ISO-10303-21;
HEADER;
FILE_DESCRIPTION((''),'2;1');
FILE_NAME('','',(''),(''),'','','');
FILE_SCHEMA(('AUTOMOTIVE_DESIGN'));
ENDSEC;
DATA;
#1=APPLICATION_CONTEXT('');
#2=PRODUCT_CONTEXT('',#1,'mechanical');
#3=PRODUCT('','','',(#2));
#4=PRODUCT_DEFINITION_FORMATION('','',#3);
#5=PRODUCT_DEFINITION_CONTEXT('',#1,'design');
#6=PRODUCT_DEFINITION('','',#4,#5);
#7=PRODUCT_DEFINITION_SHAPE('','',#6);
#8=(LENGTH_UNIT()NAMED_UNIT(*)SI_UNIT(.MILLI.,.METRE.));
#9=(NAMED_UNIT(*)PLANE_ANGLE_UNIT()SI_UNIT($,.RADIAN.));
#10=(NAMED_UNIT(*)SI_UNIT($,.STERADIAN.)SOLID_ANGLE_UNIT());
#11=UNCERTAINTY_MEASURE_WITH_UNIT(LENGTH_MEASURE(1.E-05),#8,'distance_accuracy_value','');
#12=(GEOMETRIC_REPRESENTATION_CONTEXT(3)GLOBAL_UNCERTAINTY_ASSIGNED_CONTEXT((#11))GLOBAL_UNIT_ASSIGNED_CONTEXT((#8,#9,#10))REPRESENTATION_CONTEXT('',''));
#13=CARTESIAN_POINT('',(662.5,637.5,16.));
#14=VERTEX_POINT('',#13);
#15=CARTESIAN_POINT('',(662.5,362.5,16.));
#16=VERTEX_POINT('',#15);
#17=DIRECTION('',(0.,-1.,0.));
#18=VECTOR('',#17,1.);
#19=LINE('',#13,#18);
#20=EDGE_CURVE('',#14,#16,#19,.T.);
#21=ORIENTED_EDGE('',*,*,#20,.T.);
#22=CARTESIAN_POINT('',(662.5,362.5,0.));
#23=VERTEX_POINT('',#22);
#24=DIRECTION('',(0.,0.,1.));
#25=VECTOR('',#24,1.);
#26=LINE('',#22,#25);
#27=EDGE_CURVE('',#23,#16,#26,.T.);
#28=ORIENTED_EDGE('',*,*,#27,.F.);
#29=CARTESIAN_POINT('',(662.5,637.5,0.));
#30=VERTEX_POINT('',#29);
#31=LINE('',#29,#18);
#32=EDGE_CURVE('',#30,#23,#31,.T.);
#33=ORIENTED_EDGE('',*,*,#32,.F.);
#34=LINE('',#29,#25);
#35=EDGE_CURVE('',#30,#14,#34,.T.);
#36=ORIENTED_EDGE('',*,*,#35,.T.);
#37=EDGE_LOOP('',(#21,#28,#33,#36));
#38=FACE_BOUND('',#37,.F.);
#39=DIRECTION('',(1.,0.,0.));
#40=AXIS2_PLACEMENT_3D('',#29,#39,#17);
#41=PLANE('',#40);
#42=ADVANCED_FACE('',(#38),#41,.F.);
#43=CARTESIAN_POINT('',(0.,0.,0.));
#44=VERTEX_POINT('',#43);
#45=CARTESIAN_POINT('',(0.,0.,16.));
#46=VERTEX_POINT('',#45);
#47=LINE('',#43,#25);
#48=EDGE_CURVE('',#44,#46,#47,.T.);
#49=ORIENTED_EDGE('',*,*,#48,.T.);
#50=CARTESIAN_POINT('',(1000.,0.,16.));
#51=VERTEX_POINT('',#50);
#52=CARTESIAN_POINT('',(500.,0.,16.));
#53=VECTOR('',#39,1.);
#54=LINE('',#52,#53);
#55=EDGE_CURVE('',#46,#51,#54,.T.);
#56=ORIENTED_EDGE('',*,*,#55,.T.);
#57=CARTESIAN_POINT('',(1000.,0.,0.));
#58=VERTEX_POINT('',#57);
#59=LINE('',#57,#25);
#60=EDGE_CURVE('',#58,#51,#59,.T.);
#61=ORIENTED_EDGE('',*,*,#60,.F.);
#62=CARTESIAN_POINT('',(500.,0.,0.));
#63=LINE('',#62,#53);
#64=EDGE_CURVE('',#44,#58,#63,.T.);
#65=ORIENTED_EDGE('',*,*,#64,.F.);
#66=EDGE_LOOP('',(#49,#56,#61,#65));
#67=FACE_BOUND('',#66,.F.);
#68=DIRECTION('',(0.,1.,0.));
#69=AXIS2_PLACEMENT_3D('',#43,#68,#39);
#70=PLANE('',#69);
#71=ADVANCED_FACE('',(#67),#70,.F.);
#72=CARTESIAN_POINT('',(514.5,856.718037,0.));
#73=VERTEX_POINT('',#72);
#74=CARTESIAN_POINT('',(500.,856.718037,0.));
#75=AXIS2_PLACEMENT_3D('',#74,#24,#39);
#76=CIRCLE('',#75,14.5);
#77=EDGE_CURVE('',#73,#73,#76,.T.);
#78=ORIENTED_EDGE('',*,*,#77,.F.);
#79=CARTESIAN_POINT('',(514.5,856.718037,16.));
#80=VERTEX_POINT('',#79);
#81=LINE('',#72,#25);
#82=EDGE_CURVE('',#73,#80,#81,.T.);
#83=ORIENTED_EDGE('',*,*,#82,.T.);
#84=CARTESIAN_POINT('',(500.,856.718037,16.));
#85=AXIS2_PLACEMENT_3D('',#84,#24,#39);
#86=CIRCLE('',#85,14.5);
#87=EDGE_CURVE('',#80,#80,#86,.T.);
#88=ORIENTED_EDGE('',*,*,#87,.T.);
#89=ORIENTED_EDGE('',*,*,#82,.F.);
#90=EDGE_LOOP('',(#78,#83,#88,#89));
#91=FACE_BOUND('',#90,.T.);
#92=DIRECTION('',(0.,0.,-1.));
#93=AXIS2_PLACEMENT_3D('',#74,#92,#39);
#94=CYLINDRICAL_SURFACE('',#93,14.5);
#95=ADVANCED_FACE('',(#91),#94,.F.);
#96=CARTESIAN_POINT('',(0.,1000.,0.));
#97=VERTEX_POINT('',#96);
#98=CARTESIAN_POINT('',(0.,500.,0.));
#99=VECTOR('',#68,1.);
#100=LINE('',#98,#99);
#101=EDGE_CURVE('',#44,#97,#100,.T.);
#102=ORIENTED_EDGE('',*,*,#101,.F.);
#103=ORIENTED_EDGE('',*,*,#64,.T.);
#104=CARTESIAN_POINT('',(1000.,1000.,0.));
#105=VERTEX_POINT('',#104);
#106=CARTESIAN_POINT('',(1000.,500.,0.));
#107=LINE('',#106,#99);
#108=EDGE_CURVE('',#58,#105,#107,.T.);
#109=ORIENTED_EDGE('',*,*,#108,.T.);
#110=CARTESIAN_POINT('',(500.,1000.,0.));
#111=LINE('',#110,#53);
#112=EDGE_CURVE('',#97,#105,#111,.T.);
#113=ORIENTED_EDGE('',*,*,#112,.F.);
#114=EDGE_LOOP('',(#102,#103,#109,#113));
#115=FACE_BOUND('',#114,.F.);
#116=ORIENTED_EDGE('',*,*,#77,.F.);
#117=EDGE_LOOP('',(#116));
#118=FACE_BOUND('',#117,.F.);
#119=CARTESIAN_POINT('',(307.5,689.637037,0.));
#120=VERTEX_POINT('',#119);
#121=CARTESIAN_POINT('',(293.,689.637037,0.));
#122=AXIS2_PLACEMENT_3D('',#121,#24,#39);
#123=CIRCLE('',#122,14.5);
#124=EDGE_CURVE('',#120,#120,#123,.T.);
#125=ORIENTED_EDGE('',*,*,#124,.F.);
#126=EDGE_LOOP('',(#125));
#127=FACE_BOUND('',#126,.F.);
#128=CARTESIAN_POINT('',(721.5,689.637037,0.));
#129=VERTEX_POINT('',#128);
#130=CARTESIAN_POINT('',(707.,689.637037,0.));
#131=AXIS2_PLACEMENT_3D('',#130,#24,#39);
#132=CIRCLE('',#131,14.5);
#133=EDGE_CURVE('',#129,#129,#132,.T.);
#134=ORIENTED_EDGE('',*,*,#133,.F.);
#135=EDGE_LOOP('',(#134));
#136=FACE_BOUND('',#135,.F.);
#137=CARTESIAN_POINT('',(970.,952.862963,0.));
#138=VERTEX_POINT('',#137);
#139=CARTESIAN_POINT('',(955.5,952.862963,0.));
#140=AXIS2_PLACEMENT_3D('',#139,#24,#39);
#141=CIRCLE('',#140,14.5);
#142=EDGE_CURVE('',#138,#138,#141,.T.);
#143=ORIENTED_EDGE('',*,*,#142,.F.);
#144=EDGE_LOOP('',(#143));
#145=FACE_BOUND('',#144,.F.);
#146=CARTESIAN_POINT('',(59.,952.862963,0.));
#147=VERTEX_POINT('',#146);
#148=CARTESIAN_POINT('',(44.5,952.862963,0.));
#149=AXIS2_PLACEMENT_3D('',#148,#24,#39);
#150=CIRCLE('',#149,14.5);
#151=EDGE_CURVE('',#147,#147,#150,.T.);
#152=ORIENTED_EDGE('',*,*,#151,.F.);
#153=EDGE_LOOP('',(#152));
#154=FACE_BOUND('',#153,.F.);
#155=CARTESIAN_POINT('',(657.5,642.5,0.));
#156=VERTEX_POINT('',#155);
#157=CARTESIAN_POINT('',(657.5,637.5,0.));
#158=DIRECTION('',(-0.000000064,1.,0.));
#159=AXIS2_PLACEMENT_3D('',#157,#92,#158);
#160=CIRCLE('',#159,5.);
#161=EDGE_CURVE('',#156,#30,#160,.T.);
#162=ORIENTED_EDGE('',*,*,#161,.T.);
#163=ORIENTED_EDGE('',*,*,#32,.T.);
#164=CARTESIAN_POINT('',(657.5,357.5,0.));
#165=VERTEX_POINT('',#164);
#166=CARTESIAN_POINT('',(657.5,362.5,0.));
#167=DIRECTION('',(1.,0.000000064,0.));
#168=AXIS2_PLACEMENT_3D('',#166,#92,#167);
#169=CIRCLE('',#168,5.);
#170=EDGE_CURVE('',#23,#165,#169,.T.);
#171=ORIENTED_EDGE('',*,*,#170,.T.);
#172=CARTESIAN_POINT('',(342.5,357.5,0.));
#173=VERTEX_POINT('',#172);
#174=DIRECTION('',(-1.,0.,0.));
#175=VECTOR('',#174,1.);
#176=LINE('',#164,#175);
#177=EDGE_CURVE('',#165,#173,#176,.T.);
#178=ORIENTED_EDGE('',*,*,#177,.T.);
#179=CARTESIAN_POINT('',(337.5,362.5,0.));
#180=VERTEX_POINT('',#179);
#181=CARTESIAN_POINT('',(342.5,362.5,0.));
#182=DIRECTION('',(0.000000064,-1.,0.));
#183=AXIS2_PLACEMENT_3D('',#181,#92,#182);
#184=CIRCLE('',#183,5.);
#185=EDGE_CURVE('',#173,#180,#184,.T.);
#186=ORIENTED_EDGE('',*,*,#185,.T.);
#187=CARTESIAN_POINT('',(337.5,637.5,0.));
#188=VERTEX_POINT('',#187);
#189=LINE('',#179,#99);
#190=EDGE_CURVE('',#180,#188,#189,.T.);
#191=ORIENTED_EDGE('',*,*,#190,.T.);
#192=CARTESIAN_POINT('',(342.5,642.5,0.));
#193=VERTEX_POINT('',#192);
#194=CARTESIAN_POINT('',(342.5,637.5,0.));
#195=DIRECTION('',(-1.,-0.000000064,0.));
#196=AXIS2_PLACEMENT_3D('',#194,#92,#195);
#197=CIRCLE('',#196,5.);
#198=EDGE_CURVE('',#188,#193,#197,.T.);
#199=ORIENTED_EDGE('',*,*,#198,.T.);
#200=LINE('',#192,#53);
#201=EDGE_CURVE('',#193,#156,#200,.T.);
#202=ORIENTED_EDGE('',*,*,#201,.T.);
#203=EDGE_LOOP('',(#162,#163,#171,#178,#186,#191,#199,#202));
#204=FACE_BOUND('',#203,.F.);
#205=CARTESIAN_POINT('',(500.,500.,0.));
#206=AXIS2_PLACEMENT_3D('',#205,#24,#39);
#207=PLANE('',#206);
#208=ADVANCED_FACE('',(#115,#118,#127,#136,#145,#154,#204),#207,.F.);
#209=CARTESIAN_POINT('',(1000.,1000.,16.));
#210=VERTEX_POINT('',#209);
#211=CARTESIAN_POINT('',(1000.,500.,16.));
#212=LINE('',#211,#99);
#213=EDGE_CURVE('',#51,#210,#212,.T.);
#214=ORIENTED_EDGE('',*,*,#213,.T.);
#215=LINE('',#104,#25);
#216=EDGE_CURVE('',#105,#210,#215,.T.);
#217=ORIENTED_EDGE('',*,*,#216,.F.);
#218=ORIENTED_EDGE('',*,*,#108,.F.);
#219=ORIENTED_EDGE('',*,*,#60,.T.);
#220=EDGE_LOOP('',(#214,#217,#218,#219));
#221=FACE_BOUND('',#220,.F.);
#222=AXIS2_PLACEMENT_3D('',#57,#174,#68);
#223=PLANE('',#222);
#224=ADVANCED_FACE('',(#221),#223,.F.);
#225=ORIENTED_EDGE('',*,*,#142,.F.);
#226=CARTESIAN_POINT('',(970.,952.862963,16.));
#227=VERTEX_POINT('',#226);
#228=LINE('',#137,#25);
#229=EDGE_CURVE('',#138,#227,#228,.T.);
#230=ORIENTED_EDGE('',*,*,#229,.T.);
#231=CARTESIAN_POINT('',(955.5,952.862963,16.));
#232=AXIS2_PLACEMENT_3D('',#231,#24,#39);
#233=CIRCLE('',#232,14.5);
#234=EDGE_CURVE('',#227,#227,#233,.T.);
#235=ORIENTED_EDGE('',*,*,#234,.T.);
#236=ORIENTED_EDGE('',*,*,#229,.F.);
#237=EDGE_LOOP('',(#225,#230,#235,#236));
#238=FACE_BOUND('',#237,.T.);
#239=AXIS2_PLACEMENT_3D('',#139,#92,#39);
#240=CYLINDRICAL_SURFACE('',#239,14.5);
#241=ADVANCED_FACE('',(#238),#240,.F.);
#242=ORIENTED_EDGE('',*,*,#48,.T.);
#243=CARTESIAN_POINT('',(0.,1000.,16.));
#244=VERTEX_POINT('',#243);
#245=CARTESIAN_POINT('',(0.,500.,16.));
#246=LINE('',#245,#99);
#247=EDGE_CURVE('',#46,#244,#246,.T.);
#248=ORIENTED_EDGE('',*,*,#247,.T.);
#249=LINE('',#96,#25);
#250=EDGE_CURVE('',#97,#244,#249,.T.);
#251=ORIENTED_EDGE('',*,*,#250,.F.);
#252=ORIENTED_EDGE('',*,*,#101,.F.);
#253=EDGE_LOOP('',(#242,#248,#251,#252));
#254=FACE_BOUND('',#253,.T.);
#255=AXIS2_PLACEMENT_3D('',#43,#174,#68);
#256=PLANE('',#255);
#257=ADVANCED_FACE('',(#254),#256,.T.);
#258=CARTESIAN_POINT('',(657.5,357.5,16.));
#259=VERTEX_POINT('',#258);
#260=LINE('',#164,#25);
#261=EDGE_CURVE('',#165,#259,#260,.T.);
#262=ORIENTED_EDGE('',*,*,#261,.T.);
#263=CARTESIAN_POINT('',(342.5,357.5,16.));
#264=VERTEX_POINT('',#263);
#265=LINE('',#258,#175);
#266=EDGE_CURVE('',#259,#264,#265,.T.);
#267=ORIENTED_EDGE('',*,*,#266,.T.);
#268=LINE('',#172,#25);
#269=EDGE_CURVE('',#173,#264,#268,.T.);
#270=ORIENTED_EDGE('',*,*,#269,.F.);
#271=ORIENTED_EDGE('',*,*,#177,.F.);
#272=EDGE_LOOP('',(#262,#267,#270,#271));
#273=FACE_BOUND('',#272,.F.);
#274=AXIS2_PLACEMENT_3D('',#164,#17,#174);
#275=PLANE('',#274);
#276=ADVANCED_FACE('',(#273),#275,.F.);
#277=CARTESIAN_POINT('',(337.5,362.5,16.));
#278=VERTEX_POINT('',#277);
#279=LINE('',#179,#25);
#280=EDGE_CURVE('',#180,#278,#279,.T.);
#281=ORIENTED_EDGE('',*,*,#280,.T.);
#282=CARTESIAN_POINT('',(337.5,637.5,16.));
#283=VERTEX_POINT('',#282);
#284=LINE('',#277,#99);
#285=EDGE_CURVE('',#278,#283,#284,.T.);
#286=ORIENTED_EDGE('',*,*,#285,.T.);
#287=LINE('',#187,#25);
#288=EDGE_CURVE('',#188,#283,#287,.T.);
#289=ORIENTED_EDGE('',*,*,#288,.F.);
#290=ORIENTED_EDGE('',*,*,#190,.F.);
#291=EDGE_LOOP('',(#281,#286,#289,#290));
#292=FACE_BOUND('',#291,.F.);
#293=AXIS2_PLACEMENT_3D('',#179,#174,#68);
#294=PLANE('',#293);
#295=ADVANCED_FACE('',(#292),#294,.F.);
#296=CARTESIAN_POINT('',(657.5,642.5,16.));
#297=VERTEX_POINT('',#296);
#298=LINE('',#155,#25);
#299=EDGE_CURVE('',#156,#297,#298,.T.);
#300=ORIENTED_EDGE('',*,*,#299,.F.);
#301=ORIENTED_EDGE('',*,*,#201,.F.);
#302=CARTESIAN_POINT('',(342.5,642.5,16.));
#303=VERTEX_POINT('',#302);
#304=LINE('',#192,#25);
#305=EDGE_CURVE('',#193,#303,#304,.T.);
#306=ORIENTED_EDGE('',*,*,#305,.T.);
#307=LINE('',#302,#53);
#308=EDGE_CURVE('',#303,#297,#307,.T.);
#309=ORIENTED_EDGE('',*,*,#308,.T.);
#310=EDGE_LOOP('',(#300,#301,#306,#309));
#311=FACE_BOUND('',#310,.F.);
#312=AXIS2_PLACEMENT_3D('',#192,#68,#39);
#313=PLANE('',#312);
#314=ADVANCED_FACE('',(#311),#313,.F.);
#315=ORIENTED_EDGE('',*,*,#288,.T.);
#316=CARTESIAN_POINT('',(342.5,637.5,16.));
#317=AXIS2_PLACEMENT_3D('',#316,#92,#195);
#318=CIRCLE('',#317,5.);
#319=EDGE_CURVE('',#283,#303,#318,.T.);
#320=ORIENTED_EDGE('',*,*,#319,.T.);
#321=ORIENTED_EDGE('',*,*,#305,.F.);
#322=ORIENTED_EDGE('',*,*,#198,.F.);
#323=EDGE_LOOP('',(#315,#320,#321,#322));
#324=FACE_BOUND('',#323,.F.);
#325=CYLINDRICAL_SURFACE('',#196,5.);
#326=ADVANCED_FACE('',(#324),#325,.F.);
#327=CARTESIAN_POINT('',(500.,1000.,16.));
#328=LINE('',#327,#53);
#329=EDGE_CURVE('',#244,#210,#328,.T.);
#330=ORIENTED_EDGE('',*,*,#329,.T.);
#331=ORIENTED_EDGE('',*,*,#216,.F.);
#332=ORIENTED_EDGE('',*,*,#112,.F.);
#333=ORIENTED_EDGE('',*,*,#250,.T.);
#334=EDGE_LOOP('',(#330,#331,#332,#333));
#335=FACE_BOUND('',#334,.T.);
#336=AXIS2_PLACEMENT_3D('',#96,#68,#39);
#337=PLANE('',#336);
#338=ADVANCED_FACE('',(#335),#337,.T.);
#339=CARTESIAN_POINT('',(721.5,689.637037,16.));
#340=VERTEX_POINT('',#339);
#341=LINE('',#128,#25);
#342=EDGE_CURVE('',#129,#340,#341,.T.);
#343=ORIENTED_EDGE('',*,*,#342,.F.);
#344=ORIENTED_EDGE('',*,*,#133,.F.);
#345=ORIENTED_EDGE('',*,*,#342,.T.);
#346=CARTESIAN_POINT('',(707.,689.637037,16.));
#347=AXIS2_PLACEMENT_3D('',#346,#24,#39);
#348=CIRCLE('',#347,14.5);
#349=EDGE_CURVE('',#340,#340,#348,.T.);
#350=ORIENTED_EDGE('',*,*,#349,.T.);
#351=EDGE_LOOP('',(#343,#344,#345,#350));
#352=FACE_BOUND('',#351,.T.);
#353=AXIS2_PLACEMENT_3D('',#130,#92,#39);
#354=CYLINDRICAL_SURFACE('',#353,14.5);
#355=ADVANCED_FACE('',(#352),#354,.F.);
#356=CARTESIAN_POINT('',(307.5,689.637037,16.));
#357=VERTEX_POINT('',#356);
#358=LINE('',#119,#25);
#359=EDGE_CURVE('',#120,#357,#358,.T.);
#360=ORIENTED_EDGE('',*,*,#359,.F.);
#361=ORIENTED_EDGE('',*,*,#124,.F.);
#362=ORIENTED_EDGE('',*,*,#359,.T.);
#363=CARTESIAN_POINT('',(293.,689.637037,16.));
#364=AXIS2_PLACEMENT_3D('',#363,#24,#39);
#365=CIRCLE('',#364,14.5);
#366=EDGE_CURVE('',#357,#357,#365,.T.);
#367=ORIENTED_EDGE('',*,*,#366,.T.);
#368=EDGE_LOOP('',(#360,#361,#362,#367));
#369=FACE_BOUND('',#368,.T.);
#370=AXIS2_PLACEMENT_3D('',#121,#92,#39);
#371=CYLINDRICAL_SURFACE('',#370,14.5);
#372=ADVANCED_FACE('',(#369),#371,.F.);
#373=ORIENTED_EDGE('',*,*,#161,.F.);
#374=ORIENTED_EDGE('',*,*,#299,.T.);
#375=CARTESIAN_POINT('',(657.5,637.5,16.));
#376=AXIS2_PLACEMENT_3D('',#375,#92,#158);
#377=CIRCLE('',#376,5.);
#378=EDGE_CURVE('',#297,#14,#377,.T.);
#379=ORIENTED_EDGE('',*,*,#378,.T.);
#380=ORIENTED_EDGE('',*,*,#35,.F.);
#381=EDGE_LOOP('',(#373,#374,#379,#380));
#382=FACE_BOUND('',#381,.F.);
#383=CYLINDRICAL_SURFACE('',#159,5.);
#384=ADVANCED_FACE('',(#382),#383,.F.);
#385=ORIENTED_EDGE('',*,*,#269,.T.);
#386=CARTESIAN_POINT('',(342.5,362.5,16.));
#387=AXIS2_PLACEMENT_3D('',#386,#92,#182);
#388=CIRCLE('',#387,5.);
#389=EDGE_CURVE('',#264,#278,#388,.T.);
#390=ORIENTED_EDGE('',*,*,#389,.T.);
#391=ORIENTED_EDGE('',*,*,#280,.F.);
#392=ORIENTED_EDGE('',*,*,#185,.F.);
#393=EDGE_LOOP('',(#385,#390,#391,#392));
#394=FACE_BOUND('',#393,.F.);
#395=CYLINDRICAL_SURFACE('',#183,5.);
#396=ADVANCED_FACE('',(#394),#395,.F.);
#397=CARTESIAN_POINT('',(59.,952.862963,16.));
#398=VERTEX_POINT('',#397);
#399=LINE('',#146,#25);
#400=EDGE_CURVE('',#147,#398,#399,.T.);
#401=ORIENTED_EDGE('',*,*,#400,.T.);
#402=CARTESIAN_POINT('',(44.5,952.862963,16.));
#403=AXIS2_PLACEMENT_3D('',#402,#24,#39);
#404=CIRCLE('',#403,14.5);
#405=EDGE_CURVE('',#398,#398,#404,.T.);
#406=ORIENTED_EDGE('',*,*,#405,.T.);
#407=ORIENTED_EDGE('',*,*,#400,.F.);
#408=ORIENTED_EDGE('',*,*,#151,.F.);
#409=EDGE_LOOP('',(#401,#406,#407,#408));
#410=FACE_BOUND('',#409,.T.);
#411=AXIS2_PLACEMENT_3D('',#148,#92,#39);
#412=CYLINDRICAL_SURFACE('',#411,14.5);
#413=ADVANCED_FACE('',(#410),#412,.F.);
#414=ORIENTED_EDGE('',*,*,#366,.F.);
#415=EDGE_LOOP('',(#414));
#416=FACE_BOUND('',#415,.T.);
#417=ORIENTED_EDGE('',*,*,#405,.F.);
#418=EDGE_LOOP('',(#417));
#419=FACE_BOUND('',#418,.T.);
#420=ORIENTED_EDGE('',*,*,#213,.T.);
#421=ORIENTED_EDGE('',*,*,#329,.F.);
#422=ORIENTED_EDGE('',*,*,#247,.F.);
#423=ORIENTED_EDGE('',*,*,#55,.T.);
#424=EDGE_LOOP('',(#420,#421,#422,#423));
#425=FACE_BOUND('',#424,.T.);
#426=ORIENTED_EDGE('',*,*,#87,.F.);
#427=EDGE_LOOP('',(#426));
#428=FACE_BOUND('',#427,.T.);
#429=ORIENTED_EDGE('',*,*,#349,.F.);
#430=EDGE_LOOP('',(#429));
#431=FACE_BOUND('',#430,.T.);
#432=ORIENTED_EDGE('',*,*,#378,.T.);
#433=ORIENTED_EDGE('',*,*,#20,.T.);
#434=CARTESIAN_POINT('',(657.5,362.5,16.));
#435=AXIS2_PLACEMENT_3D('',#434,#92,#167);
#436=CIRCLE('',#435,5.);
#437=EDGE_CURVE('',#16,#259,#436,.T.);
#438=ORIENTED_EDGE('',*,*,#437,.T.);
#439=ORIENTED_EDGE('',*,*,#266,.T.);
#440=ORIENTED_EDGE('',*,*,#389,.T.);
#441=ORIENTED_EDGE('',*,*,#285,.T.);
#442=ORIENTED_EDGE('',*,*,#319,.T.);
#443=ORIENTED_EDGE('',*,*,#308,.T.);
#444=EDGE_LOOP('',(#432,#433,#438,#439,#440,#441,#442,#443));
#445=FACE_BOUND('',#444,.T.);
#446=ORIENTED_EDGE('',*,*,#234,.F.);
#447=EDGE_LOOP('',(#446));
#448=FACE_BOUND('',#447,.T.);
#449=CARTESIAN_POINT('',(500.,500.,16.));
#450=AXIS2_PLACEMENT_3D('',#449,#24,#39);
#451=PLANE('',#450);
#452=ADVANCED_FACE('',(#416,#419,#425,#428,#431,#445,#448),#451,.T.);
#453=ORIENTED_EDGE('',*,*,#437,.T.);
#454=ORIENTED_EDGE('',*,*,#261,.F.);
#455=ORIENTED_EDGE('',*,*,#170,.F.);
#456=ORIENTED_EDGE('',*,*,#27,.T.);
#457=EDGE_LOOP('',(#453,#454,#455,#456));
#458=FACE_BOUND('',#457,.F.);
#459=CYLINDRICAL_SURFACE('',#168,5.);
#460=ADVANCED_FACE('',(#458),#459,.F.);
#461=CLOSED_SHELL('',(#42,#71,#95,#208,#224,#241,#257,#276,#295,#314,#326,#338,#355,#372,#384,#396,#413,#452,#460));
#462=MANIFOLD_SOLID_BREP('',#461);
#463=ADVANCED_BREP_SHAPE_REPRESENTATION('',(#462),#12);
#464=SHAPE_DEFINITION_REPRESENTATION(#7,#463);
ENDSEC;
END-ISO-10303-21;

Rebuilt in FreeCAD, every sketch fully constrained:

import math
import FreeCAD as App
import Part
import Sketcher
from FreeCAD import Vector


def add_polygon(sketch, points):
    """Adds a closed chain of lines whose ends are joined by coincident constraints."""
    first, n = sketch.GeometryCount, len(points)
    for a, b in zip(points, points[1:] + points[:1]):
        sketch.addGeometry(Part.LineSegment(App.Vector(*a, 0), App.Vector(*b, 0)), False)
    for i in range(n):
        sketch.addConstraint(Sketcher.Constraint("Coincident", first + i, 2, first + (i + 1) % n, 1))

doc = App.newDocument("Part")
body = doc.addObject("PartDesign::Body", "Body")

sketch1 = body.newObject("Sketcher::SketchObject", "Sketch")
sketch1.AttachmentSupport = (doc.getObject("XY_Plane"), [""])
sketch1.MapMode = "FlatFace"
add_polygon(sketch1, [(0, 1000), (0, 0), (1000, 0), (1000, 1000)])
sketch1.addGeometry(Part.ArcOfCircle(Part.Circle(Vector(342.5, 637.5, 0), Vector(0, 0, 1), 5), math.radians(89.999996), math.radians(180.000004)), False)
sketch1.addGeometry(Part.LineSegment(Vector(342.5, 642.5, 0), Vector(657.5, 642.5, 0)), False)
sketch1.addGeometry(Part.ArcOfCircle(Part.Circle(Vector(657.5, 637.5, 0), Vector(0, 0, 1), 5), math.radians(-0.000004), math.radians(90.000004)), False)
sketch1.addGeometry(Part.LineSegment(Vector(662.5, 637.5, 0), Vector(662.5, 362.5, 0)), False)
sketch1.addGeometry(Part.ArcOfCircle(Part.Circle(Vector(657.5, 362.5, 0), Vector(0, 0, 1), 5), math.radians(-90.000004), math.radians(0.000004)), False)
sketch1.addGeometry(Part.LineSegment(Vector(657.5, 357.5, 0), Vector(342.5, 357.5, 0)), False)
sketch1.addGeometry(Part.ArcOfCircle(Part.Circle(Vector(342.5, 362.5, 0), Vector(0, 0, 1), 5), math.radians(179.999996), math.radians(270.000004)), False)
sketch1.addGeometry(Part.LineSegment(Vector(337.5, 362.5, 0), Vector(337.5, 637.5, 0)), False)
sketch1.addGeometry(Part.Circle(Vector(293, 689.637037, 0), Vector(0, 0, 1), 14.5), False)
sketch1.addGeometry(Part.Circle(Vector(44.5, 952.862963, 0), Vector(0, 0, 1), 14.5), False)
sketch1.addGeometry(Part.Circle(Vector(707, 689.637037, 0), Vector(0, 0, 1), 14.5), False)
sketch1.addGeometry(Part.Circle(Vector(500, 856.718037, 0), Vector(0, 0, 1), 14.5), False)
sketch1.addGeometry(Part.Circle(Vector(955.5, 952.862963, 0), Vector(0, 0, 1), 14.5), False)
sketch1.addConstraint([
    Sketcher.Constraint("Tangent", 4, 1, 5, 1),
    Sketcher.Constraint("Tangent", 5, 2, 6, 2),
    Sketcher.Constraint("Tangent", 6, 1, 7, 1),
    Sketcher.Constraint("Tangent", 7, 2, 8, 2),
    Sketcher.Constraint("Tangent", 8, 1, 9, 1),
    Sketcher.Constraint("Tangent", 9, 2, 10, 2),
    Sketcher.Constraint("Tangent", 10, 1, 11, 1),
    Sketcher.Constraint("Tangent", 11, 2, 4, 2),
    Sketcher.Constraint("Vertical", 0),
    Sketcher.Constraint("Horizontal", 1),
    Sketcher.Constraint("Vertical", 2),
    Sketcher.Constraint("Horizontal", 3),
    Sketcher.Constraint("Horizontal", 5),
    Sketcher.Constraint("Vertical", 7),
    Sketcher.Constraint("Horizontal", 9),
    Sketcher.Constraint("Vertical", 11),
    Sketcher.Constraint("Coincident", 0, 2, -1, 1),
    Sketcher.Constraint("Equal", 4, 6),
    Sketcher.Constraint("Equal", 6, 8),
    Sketcher.Constraint("Equal", 8, 10),
    Sketcher.Constraint("Equal", 12, 13),
    Sketcher.Constraint("Equal", 13, 14),
    Sketcher.Constraint("Equal", 14, 15),
    Sketcher.Constraint("Equal", 15, 16),
    Sketcher.Constraint("Horizontal", 12, 3, 14, 3),
    Sketcher.Constraint("Horizontal", 13, 3, 16, 3),
    Sketcher.Constraint("Equal", 3, 0),
    Sketcher.Constraint("Diameter", 12, 29.0),
    Sketcher.Constraint("Radius", 4, 5.0),
    Sketcher.Constraint("DistanceX", 1, 1, 1, 2, 1000.0),
    Sketcher.Constraint("DistanceX", 5, 1, 5, 2, 315.0),
    Sketcher.Constraint("DistanceY", 7, 2, 7, 1, 275.0),
    Sketcher.Constraint("DistanceX", -1, 1, 12, 3, 293.0),
    Sketcher.Constraint("DistanceX", -1, 1, 14, 3, 707.0),
    Sketcher.Constraint("DistanceX", -1, 1, 15, 3, 500.0),
    Sketcher.Constraint("DistanceX", 13, 3, 4, 3, 298.0),
    Sketcher.Constraint("DistanceX", 6, 3, 16, 3, 298.0),
    Sketcher.Constraint("DistanceX", -1, 1, 4, 3, 342.5),
    Sketcher.Constraint("DistanceY", -1, 1, 4, 3, 637.5),
    Sketcher.Constraint("DistanceY", 12, 3, 15, 3, 167.081),
    Sketcher.Constraint("DistanceY", -1, 1, 12, 3, 689.637037),
    Sketcher.Constraint("DistanceY", -1, 1, 13, 3, 952.862963),
])
pad1 = body.newObject("PartDesign::Pad", "Pad")
pad1.Profile = sketch1
pad1.Length = 16

doc.recompute()
